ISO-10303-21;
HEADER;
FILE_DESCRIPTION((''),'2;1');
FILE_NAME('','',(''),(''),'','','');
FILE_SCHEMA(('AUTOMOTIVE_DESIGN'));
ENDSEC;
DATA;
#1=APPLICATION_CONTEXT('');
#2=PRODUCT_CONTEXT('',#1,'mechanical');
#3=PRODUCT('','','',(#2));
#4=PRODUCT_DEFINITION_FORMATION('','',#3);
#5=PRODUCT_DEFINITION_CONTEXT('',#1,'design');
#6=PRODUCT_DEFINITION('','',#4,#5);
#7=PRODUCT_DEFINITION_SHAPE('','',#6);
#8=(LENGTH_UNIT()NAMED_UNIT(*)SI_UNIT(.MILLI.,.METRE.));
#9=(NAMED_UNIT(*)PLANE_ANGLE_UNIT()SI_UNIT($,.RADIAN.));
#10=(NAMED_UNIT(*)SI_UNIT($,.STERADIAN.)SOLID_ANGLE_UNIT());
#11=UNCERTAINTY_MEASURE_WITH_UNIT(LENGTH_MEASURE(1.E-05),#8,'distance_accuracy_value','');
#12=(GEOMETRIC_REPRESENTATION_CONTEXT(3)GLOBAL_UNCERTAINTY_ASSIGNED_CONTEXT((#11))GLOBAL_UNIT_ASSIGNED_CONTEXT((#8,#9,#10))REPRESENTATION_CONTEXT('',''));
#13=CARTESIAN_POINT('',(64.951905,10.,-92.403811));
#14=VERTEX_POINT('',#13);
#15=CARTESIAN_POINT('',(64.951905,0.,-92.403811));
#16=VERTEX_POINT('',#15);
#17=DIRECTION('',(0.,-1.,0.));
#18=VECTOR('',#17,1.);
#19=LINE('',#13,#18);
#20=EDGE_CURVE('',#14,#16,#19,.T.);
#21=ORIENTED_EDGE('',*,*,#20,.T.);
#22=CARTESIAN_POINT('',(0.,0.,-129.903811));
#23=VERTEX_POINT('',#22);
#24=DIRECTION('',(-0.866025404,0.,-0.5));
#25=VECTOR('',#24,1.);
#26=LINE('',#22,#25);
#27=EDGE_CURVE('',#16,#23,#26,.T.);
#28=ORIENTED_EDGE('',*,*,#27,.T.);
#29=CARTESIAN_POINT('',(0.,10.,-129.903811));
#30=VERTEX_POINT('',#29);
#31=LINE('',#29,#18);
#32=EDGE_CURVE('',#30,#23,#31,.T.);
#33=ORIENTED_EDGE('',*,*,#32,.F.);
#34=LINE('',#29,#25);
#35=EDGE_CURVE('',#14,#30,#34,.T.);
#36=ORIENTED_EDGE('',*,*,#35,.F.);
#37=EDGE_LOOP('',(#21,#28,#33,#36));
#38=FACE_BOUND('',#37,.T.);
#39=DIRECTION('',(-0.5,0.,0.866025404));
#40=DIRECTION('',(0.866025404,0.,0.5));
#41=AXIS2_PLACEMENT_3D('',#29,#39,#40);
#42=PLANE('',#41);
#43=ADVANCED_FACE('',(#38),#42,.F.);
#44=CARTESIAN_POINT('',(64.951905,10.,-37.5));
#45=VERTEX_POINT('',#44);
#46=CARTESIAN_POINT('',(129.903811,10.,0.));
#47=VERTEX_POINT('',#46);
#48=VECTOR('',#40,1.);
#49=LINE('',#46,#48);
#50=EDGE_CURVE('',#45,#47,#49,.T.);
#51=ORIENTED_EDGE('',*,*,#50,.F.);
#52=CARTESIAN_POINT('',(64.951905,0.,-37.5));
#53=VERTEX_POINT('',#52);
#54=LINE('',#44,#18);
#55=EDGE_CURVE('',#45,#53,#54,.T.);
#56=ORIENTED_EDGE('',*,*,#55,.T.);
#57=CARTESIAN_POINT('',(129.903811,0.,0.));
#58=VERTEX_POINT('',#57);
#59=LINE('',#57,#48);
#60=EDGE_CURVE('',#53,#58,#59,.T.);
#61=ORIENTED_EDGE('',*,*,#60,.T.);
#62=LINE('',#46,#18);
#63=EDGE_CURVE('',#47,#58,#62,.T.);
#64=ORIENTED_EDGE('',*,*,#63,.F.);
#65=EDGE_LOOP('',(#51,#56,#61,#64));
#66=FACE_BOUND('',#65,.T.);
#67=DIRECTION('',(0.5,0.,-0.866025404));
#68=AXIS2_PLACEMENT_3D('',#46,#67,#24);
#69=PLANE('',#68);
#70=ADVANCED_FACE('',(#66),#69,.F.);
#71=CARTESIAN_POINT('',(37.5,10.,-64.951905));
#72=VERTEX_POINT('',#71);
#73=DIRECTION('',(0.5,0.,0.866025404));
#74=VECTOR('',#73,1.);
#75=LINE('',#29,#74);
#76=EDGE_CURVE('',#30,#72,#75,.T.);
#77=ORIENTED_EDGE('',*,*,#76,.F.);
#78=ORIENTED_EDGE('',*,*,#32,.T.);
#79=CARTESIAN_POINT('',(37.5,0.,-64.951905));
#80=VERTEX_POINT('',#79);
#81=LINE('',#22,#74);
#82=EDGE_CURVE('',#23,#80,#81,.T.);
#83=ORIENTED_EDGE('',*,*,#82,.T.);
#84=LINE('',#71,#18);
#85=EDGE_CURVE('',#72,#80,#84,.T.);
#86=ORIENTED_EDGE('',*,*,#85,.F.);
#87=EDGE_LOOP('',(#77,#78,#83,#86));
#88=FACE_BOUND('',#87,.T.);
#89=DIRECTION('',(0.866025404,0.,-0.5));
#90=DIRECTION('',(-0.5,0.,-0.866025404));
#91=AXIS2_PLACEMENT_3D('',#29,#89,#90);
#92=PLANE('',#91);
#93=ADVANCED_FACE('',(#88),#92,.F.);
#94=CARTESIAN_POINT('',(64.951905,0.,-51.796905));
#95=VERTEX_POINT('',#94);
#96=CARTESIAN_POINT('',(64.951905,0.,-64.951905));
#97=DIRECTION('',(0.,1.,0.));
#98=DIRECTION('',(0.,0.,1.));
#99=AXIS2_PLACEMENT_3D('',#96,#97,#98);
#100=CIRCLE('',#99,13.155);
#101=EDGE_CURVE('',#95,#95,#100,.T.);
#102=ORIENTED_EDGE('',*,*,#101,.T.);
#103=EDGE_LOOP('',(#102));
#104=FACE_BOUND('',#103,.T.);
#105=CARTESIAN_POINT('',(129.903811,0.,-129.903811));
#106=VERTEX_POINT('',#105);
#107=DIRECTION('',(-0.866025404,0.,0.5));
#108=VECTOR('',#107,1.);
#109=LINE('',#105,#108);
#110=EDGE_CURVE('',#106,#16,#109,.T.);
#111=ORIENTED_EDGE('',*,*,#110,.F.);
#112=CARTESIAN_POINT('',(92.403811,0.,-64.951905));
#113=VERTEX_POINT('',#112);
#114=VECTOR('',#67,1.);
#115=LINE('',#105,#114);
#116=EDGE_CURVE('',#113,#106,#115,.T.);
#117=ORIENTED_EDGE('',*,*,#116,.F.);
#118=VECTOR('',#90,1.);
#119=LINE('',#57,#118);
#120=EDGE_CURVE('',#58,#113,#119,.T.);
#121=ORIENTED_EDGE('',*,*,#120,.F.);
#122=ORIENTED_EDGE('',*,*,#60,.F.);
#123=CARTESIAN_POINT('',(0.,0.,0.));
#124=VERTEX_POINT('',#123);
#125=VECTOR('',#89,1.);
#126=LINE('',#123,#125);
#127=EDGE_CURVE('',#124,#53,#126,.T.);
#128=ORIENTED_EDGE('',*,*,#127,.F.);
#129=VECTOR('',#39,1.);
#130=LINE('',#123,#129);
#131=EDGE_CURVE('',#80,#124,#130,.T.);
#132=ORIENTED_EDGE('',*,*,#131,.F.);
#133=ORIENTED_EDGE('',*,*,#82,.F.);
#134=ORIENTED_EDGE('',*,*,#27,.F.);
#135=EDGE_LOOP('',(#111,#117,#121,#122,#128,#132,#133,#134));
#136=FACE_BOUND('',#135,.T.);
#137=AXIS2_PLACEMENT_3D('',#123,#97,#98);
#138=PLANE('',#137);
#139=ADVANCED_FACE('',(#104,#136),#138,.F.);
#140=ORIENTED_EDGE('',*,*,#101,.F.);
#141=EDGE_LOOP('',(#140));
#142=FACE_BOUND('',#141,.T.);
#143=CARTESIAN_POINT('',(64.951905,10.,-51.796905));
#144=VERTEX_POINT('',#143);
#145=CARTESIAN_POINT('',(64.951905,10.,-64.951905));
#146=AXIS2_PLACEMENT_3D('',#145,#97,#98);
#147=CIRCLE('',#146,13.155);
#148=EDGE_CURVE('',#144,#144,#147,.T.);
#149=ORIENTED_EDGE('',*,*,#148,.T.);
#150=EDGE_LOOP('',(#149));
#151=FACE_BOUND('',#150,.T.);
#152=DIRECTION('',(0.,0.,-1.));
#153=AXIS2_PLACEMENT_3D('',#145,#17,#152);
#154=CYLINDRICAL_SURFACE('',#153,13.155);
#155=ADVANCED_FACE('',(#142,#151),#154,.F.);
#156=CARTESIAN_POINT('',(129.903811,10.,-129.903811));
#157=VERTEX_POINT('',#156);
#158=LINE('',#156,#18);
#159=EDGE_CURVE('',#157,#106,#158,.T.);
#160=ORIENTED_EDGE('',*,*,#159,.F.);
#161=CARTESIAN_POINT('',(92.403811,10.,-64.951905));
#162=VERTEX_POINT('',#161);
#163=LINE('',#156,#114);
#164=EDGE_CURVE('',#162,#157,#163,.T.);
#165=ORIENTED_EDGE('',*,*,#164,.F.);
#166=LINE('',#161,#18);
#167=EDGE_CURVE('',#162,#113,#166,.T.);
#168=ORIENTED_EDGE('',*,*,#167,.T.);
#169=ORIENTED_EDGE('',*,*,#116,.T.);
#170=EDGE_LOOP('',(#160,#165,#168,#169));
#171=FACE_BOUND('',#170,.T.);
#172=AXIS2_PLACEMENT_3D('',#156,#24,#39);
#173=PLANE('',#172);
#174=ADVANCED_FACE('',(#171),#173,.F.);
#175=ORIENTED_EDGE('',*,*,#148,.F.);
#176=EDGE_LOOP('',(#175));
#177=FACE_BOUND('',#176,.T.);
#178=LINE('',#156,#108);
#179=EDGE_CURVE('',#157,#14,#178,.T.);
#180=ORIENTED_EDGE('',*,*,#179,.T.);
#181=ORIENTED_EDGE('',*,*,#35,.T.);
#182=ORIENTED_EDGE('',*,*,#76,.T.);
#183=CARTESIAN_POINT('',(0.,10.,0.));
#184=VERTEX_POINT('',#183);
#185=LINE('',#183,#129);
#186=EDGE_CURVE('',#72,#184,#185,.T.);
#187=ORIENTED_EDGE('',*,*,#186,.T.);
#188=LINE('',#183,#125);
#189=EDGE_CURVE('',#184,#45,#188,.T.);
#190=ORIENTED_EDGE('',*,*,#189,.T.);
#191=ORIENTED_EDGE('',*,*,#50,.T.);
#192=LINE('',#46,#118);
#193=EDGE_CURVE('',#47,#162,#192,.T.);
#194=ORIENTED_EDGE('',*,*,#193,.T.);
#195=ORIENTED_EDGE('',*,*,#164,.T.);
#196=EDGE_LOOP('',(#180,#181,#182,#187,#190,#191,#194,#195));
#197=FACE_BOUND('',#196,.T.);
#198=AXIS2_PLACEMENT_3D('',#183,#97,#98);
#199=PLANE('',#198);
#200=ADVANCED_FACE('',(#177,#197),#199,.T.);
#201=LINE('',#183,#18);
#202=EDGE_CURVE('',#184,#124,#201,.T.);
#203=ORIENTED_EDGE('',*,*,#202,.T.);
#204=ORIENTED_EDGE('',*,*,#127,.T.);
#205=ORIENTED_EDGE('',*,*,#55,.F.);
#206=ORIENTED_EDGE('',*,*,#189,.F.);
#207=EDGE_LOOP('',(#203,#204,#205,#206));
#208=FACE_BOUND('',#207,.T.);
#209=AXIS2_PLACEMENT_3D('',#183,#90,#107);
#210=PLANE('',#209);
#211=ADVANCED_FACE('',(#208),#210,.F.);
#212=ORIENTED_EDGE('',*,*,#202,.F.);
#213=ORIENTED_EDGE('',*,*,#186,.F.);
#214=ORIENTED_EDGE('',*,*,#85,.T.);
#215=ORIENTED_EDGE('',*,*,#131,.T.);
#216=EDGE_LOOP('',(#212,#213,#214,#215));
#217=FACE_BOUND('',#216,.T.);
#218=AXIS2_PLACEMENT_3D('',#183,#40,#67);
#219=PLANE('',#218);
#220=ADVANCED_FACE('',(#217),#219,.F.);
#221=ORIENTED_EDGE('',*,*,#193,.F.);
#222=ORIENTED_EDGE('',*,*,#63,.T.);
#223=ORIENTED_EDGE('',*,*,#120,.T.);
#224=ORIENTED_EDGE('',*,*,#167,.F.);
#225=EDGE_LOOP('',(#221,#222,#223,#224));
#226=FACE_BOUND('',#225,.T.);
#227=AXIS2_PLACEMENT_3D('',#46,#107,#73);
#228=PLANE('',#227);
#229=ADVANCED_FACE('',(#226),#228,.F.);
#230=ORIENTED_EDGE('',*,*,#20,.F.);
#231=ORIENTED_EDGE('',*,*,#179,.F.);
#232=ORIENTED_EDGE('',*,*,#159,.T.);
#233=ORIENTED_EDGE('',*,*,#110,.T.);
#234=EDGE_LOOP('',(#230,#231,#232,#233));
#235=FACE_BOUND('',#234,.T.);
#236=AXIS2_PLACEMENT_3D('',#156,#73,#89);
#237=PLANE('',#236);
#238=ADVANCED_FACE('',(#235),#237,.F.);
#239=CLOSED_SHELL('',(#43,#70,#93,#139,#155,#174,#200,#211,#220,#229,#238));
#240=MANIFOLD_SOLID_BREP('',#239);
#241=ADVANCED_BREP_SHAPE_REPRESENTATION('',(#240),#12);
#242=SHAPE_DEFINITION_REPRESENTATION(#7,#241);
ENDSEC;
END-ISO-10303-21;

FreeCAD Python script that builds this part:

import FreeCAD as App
import Part
import Sketcher

V = App.Vector
Q = App.Units.Quantity


def add_polygon(sketch, points):
    """Adds a closed chain of lines whose ends are joined by coincident constraints."""
    first, n = sketch.GeometryCount, len(points)
    for a, b in zip(points, points[1:] + points[:1]):
        sketch.addGeometry(Part.LineSegment(App.Vector(*a, 0), App.Vector(*b, 0)), False)
    for i in range(n):
        sketch.addConstraint(Sketcher.Constraint("Coincident", first + i, 2, first + (i + 1) % n, 1))

doc = App.newDocument("Part")
body = doc.addObject("PartDesign::Body", "Body")

sketch1 = body.newObject("Sketcher::SketchObject", "Sketch")
sketch1.AttachmentSupport = (doc.getObject("XZ_Plane"), [""])
sketch1.MapMode = "FlatFace"
add_polygon(sketch1, [(38, -65), (0, 0), (65, -38), (130, 0), (92, -65), (130, -130), (65, -92), (0, -130)])
sketch1.addGeometry(Part.Circle(V(65, -65, 0), V(0, 0, 1), 13), False)
sketch1.addConstraint(Sketcher.Constraint("Coincident", 0, 2, -1, 1))
sketch1.addConstraint(Sketcher.Constraint("PointOnObject", 2, 2, -1))
sketch1.addConstraint(Sketcher.Constraint("PointOnObject", 6, 2, -2))
sketch1.addConstraint(Sketcher.Constraint("Perpendicular", 0, 2))
sketch1.addConstraint(Sketcher.Constraint("Perpendicular", 1, 3))
sketch1.addConstraint(Sketcher.Constraint("Perpendicular", 2, 4))
sketch1.addConstraint(Sketcher.Constraint("Perpendicular", 3, 5))
sketch1.addConstraint(Sketcher.Constraint("Perpendicular", 4, 6))
sketch1.addConstraint(Sketcher.Constraint("Perpendicular", 5, 7))
sketch1.addConstraint(Sketcher.Constraint("Horizontal", 8, 3, 3, 2))
sketch1.addConstraint(Sketcher.Constraint("Horizontal", 4, 2, 6, 2))
sketch1.addConstraint(Sketcher.Constraint("Horizontal", 3, 2, 7, 2))
sketch1.addConstraint(Sketcher.Constraint("Vertical", 8, 3, 1, 2))
sketch1.addConstraint(Sketcher.Constraint("Vertical", 2, 2, 4, 2))
sketch1.addConstraint(Sketcher.Constraint("Equal", 0, 1))
sketch1.addConstraint(Sketcher.Constraint("Diameter", 8, Q("26.31 mm")))
sketch1.addConstraint(Sketcher.Constraint("Angle", 0, Q("120 deg")))
sketch1.addConstraint(Sketcher.Constraint("Distance", 0, Q("75 mm")))
pad1 = body.newObject("PartDesign::Pad", "Pad")
pad1.Profile = sketch1
pad1.Length = 10
pad1.Reversed = True

doc.recompute()
